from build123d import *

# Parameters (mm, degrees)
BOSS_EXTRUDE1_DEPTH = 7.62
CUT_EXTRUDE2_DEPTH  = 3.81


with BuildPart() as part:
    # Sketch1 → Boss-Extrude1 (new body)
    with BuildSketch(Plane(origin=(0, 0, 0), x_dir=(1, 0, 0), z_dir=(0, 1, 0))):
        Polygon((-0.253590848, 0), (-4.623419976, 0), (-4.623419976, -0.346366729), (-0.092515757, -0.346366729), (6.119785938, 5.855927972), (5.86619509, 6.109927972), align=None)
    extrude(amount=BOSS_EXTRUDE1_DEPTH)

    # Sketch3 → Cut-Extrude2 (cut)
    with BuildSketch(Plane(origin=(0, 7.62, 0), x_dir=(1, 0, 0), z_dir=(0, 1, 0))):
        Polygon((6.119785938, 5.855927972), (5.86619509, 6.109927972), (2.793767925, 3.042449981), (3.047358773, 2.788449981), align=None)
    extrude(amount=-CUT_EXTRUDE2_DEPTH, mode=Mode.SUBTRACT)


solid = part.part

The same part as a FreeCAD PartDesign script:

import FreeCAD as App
import Part
import Sketcher

V = App.Vector
Q = App.Units.Quantity

doc = App.newDocument("Part")
body = doc.addObject("PartDesign::Body", "Body")

sketch1 = body.newObject("Sketcher::SketchObject", "Sketch")
sketch1.AttachmentSupport = (doc.getObject("XZ_Plane"), [""])
sketch1.MapMode = "FlatFace"
sketch1.addGeometry([
    Part.LineSegment(V(-0.25, 0, 0), V(-4.62, 0, 0)),
    Part.LineSegment(V(-4.62, 0, 0), V(-4.62, 0.35, 0)),
    Part.LineSegment(V(-4.62, 0.35, 0), V(-0.09, 0.35, 0)),
    Part.LineSegment(V(-0.09, 0.35, 0), V(6.12, -5.86, 0)),
    Part.LineSegment(V(6.12, -5.86, 0), V(5.87, -6.11, 0)),
    Part.LineSegment(V(5.87, -6.11, 0), V(-0.25, 0, 0)),
], False)
sketch1.addConstraint([
    Sketcher.Constraint("Coincident", 0, 2, 1, 1),
    Sketcher.Constraint("Coincident", 1, 2, 2, 1),
    Sketcher.Constraint("Coincident", 2, 2, 3, 1),
    Sketcher.Constraint("Coincident", 3, 2, 4, 1),
    Sketcher.Constraint("Coincident", 4, 2, 5, 1),
    Sketcher.Constraint("Coincident", 5, 2, 0, 1),
    Sketcher.Constraint("Horizontal", 0),
    Sketcher.Constraint("Vertical", 1),
    Sketcher.Constraint("Horizontal", 2),
    Sketcher.Constraint("PointOnObject", 0, 2, -1),
    Sketcher.Constraint("Perpendicular", 3, 4),
    Sketcher.Constraint("Perpendicular", 4, 5),
    Sketcher.Constraint("DistanceY", 4, 2, 3, 2, Q("0.01 in")),
    Sketcher.Constraint("DistanceX", 0, 2, 0, 1, 4.369829),
    Sketcher.Constraint("DistanceX", 2, 2, 3, 2, 6.212302),
    Sketcher.Constraint("Distance", 3, 8.778448),
    Sketcher.Constraint("DistanceX", 2, 1, 2, 2, 4.530904),
    Sketcher.Constraint("DistanceX", 0, 2, -1, 1, 4.62342),
])
pad1 = body.newObject("PartDesign::Pad", "Pad")
pad1.Profile = sketch1
pad1.Length = Q("0.3 in")
pad1.Reversed = True

sketch2 = body.newObject("Sketcher::SketchObject", "Sketch001")
sketch2.AttachmentSupport = (doc.getObject("XZ_Plane"), [""])
sketch2.MapMode = "FlatFace"
sketch2.AttachmentOffset = App.Placement(V(0, 0, -0.3 * 25.4), App.Rotation())
sketch2.addGeometry([
    Part.LineSegment(V(6.12, -5.86, 0), V(5.87, -6.11, 0)),
    Part.LineSegment(V(5.87, -6.11, 0), V(2.79, -3.04, 0)),
    Part.LineSegment(V(2.79, -3.04, 0), V(3.05, -2.79, 0)),
    Part.LineSegment(V(3.05, -2.79, 0), V(6.12, -5.86, 0)),
], False)
sketch2.addConstraint([
    Sketcher.Constraint("Coincident", 0, 2, 1, 1),
    Sketcher.Constraint("Coincident", 1, 2, 2, 1),
    Sketcher.Constraint("Coincident", 2, 2, 3, 1),
    Sketcher.Constraint("Coincident", 3, 2, 0, 1),
    Sketcher.Constraint("Perpendicular", 0, 1),
    Sketcher.Constraint("Perpendicular", 1, 2),
    Sketcher.Constraint("Perpendicular", 2, 3),
    Sketcher.Constraint("DistanceY", 1, 2, 2, 2, Q("0.01 in")),
    Sketcher.Constraint("Distance", 0, 0.358921),
    Sketcher.Constraint("Distance", 1, 4.34157),
    Sketcher.Constraint("DistanceY", 1, 2, -1, 1, 3.04245),
    Sketcher.Constraint("DistanceX", -1, 1, 2, 2, 3.047359),
])
pocket1 = body.newObject("PartDesign::Pocket", "Pocket")
pocket1.Profile = sketch2
pocket1.Length = Q("0.15 in")
pocket1.Reversed = True

doc.recompute()
